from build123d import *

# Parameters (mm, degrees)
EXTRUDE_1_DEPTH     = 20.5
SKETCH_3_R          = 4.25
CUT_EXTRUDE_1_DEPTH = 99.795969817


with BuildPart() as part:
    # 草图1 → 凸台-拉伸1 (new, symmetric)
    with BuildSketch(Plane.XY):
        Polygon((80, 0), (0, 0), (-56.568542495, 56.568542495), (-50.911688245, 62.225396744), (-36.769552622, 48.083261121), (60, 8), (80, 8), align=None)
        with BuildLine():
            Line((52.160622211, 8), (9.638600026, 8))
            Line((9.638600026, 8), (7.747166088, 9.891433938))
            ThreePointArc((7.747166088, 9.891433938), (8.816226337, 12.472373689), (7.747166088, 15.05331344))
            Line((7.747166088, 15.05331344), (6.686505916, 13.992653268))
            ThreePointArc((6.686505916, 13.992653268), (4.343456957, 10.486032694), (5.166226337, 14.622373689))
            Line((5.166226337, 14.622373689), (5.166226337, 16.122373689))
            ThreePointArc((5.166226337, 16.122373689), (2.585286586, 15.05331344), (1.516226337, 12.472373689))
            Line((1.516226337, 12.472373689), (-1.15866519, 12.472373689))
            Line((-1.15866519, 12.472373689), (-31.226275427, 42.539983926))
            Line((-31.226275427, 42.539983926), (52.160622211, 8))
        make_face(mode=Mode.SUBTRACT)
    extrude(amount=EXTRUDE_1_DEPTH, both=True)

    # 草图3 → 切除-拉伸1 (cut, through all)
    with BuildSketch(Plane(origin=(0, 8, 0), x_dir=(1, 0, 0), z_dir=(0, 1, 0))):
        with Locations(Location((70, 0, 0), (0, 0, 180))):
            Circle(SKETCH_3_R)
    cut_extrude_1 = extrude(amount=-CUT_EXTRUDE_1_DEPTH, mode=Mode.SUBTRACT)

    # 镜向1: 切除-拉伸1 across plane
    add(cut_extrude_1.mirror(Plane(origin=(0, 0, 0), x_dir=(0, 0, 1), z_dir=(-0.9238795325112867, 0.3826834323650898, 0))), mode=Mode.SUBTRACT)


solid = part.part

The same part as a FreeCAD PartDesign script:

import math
import FreeCAD as App
import Part
import Sketcher

V = App.Vector
Q = App.Units.Quantity

doc = App.newDocument("Part")
body = doc.addObject("PartDesign::Body", "Body")

# Sketch on XY plane
sketch1 = body.newObject("Sketcher::SketchObject", "Sketch")
sketch1.AttachmentSupport = (doc.getObject("XY_Plane"), [""])
sketch1.MapMode = "FlatFace"
sketch1.addGeometry([
    Part.LineSegment(V(0, 0, 0), V(80, 0, 0)),  # 0
    Part.LineSegment(V(80, 0, 0), V(80, 8, 0)),  # 1
    Part.LineSegment(V(80, 8, 0), V(60, 8, 0)),  # 2
    Part.LineSegment(V(60, 8, 0), V(-36.769553, 48.083261, 0)),  # 3
    Part.LineSegment(V(-36.769553, 48.083261, 0), V(-50.911688, 62.225397, 0)),  # 4
    Part.LineSegment(V(-50.911688, 62.225397, 0), V(-56.568542, 56.568542, 0)),  # 5
    Part.LineSegment(V(-56.568542, 56.568542, 0), V(0, 0, 0)),  # 6
    Part.LineSegment(V(52.160622, 8, 0), V(9.6386, 8, 0)),  # 7
    Part.LineSegment(V(9.6386, 8, 0), V(7.747166, 9.891434, 0)),  # 8
    Part.ArcOfCircle(Part.Circle(V(5.166226, 12.472374, 0), V(0, 0, 1), 3.65), math.radians(-45), math.radians(45)),  # 9
    Part.LineSegment(V(7.747166, 15.053313, 0), V(6.686506, 13.992653, 0)),  # 10
    Part.ArcOfCircle(Part.Circle(V(5.166226, 12.472374, 0), V(0, 0, 1), 2.15), math.radians(90), math.radians(405)),  # 11
    Part.LineSegment(V(5.166226, 14.622374, 0), V(5.166226, 16.122374, 0)),  # 12
    Part.ArcOfCircle(Part.Circle(V(5.166226, 12.472374, 0), V(0, 0, 1), 3.65), math.radians(90), math.radians(180)),  # 13
    Part.LineSegment(V(1.516226, 12.472374, 0), V(-1.158665, 12.472374, 0)),  # 14
    Part.LineSegment(V(-1.158665, 12.472374, 0), V(-31.226275, 42.539984, 0)),  # 15
    Part.LineSegment(V(-31.226275, 42.539984, 0), V(52.160622, 8, 0)),  # 16
], False)
sketch1.addConstraint([
    Sketcher.Constraint("Coincident", 0, 2, 1, 1),
    Sketcher.Constraint("Coincident", 1, 2, 2, 1),
    Sketcher.Constraint("Coincident", 2, 2, 3, 1),
    Sketcher.Constraint("Coincident", 3, 2, 4, 1),
    Sketcher.Constraint("Coincident", 4, 2, 5, 1),
    Sketcher.Constraint("Coincident", 5, 2, 6, 1),
    Sketcher.Constraint("Coincident", 6, 2, 0, 1),
    Sketcher.Constraint("Coincident", 7, 2, 8, 1),
    Sketcher.Constraint("Coincident", 8, 2, 9, 1),
    Sketcher.Constraint("Coincident", 9, 2, 10, 1),
    Sketcher.Constraint("Coincident", 10, 2, 11, 2),
    Sketcher.Constraint("Coincident", 11, 1, 12, 1),
    Sketcher.Constraint("Coincident", 12, 2, 13, 1),
    Sketcher.Constraint("Coincident", 13, 2, 14, 1),
    Sketcher.Constraint("Coincident", 14, 2, 15, 1),
    Sketcher.Constraint("Coincident", 15, 2, 16, 1),
    Sketcher.Constraint("Coincident", 16, 2, 7, 1),
    Sketcher.Constraint("Horizontal", 0),
    Sketcher.Constraint("Vertical", 1),
    Sketcher.Constraint("Horizontal", 2),
    Sketcher.Constraint("Horizontal", 7),
    Sketcher.Constraint("Vertical", 12),
    Sketcher.Constraint("Horizontal", 14),
    Sketcher.Constraint("Coincident", 6, 2, -1, 1),
    Sketcher.Constraint("Coincident", 11, 3, 9, 3),
    Sketcher.Constraint("Coincident", 13, 3, 9, 3),
    Sketcher.Constraint("Equal", 9, 13),
    Sketcher.Constraint("Perpendicular", 4, 5),
    Sketcher.Constraint("Perpendicular", 5, 6),
    Sketcher.Constraint("Parallel", 6, 8),
    Sketcher.Constraint("Perpendicular", 8, 10),
    Sketcher.Constraint("Perpendicular", 10, 15),
    Sketcher.Constraint("Parallel", 3, 16),
    Sketcher.Constraint("Horizontal", 2, 2, 7, 2),
    Sketcher.Constraint("Horizontal", 11, 3, 13, 2),
    Sketcher.Constraint("Vertical", 8, 2, 9, 2),
    Sketcher.Constraint("Vertical", 13, 3, 11, 1),
    Sketcher.Constraint("DistanceX", 0, 1, 0, 2, Q("80 mm")),
    Sketcher.Constraint("DistanceX", 2, 2, 2, 1, Q("20 mm")),
    Sketcher.Constraint("DistanceY", 1, 1, 1, 2, Q("8 mm")),
    Sketcher.Constraint("Angle", 4, Q("135 deg")),
    Sketcher.Constraint("Radius", 9, Q("3.65 mm")),
    Sketcher.Constraint("Radius", 11, Q("2.15 mm")),
    Sketcher.Constraint("Distance", 4, Q("20 mm")),
    Sketcher.Constraint("Distance", 5, Q("8 mm")),
    Sketcher.Constraint("Distance", 6, Q("80 mm")),
    Sketcher.Constraint("DistanceX", 14, 2, 14, 1, Q("2.674892 mm")),
    Sketcher.Constraint("DistanceX", -1, 1, 7, 2, Q("9.6386 mm")),
    Sketcher.Constraint("DistanceX", 15, 2, 13, 2, Q("32.742502 mm")),
    Sketcher.Constraint("Distance", 8, Q("2.674892 mm")),
    Sketcher.Constraint("DistanceX", 7, 2, 7, 1, Q("42.522022 mm")),
])
pad1 = body.newObject("PartDesign::Pad", "Pad")
pad1.Profile = sketch1
pad1.Length = 41
pad1.Midplane = True

# Sketch on XZ plane
sketch2 = body.newObject("Sketcher::SketchObject", "Sketch001")
sketch2.AttachmentSupport = (doc.getObject("XZ_Plane"), [""])
sketch2.MapMode = "FlatFace"
sketch2.AttachmentOffset = App.Placement(V(0, 0, -8), App.Rotation())
sketch2.addGeometry(Part.Circle(V(70, 0, 0), V(0, 0, 1), 4.25), False)
sketch2.addConstraint([
    Sketcher.Constraint("PointOnObject", 0, 3, -1),
    Sketcher.Constraint("Diameter", 0, Q("8.5 mm")),
    Sketcher.Constraint("DistanceX", -1, 1, 0, 3, Q("70 mm")),
])
pocket1 = body.newObject("PartDesign::Pocket", "Pocket")
pocket1.Profile = sketch2
pocket1.Type = "ThroughAll"
pocket1.Reversed = True
doc.recompute()

datumplane = body.newObject("PartDesign::Plane", "DatumPlane")
datumplane.Placement = App.Placement(V(0, 0, 0), App.Rotation(V(0.382683432, 0.923879533, 0), V(0, 0, -1), V(-0.923879533, 0.382683432, 0), "ZXY"))
mirrored = body.newObject("PartDesign::Mirrored", "Mirrored")
mirrored.Originals = [pocket1]
mirrored.MirrorPlane = (datumplane, [""])
body.Tip = mirrored

doc.recompute()
